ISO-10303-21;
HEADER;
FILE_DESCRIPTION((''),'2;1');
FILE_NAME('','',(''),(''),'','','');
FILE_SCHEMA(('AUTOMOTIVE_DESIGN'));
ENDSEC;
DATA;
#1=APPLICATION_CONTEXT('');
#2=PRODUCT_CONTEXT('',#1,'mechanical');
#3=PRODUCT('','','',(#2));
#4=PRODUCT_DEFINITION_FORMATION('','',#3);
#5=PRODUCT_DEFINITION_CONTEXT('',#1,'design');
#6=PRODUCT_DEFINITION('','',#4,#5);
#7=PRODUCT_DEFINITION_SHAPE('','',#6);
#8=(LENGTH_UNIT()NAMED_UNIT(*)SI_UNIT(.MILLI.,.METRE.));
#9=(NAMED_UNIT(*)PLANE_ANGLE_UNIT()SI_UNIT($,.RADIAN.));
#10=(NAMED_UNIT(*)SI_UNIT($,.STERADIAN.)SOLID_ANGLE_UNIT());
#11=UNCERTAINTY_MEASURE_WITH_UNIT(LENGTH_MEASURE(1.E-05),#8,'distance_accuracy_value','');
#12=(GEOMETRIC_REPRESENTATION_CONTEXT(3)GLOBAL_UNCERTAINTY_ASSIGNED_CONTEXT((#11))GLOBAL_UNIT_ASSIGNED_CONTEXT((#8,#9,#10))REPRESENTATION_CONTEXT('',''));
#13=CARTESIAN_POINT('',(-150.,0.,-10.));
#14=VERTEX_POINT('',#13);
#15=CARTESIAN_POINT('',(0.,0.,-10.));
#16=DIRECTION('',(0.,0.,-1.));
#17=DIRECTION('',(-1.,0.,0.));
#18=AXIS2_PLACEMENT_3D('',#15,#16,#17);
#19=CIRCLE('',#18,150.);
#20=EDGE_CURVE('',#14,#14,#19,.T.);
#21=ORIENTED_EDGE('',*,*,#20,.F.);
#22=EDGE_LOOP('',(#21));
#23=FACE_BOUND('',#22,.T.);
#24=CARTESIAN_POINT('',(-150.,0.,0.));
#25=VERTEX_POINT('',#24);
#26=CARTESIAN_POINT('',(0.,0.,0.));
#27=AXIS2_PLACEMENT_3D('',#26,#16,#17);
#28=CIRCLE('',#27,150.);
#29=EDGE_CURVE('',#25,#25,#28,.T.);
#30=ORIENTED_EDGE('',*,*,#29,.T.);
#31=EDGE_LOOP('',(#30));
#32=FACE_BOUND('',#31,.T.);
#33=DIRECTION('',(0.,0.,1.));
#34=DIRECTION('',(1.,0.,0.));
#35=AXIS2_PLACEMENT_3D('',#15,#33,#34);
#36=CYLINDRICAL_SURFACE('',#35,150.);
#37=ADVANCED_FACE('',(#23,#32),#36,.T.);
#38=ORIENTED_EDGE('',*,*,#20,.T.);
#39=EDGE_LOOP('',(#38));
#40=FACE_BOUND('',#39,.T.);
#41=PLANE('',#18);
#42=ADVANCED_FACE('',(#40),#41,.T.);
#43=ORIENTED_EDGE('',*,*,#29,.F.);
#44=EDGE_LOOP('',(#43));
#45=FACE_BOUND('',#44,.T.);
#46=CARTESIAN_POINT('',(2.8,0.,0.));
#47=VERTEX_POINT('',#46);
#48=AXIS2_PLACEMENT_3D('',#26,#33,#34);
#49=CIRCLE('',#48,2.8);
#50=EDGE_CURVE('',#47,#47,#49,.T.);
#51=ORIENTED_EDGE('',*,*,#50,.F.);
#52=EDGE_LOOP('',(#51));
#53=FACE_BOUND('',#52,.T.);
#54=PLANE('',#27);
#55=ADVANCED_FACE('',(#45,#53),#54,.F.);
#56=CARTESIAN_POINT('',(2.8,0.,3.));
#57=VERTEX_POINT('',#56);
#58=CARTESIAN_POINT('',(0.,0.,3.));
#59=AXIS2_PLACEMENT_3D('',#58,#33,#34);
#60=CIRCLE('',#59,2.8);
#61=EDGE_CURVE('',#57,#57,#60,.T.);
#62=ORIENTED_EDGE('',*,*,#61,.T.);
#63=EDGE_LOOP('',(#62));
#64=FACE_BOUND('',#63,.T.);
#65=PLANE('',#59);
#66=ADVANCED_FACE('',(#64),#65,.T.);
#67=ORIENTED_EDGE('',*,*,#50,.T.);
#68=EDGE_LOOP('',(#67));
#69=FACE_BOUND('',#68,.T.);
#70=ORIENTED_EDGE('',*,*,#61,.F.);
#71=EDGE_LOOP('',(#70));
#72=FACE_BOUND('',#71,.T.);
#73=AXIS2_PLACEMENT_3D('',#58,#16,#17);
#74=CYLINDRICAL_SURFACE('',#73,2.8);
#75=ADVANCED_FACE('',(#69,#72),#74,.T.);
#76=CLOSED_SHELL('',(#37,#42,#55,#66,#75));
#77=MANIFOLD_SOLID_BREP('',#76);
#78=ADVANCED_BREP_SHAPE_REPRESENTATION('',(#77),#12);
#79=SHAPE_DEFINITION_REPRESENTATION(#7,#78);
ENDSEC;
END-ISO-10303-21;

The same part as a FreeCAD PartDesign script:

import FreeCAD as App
import Part
import Sketcher
from FreeCAD import Vector
Q = App.Units.Quantity

doc = App.newDocument("Part")
body = doc.addObject("PartDesign::Body", "Body")

# Sketch on XY plane
sketch1 = body.newObject("Sketcher::SketchObject", "Sketch")
sketch1.AttachmentSupport = (doc.getObject("XY_Plane"), [""])
sketch1.MapMode = "FlatFace"
sketch1.addGeometry(Part.Circle(Vector(0, 0, 0), Vector(0, 0, 1), 2.8), False)
sketch1.addConstraint(Sketcher.Constraint("Coincident", 0, 3, -1, 1))
sketch1.addConstraint(Sketcher.Constraint("Diameter", 0, Q("5.6 mm")))
pad1 = body.newObject("PartDesign::Pad", "Pad")
pad1.Profile = sketch1
pad1.Length = 3

# Sketch on XY plane
sketch2 = body.newObject("Sketcher::SketchObject", "Sketch001")
sketch2.AttachmentSupport = (doc.getObject("XY_Plane"), [""])
sketch2.MapMode = "FlatFace"
sketch2.addGeometry(Part.Circle(Vector(0, 0, 0), Vector(0, 0, 1), 150), False)
sketch2.addConstraint(Sketcher.Constraint("Coincident", 0, 3, -1, 1))
sketch2.addConstraint(Sketcher.Constraint("Diameter", 0, Q("300 mm")))
pad2 = body.newObject("PartDesign::Pad", "Pad001")
pad2.Profile = sketch2
pad2.Length = 10
pad2.Reversed = True

doc.recompute()
